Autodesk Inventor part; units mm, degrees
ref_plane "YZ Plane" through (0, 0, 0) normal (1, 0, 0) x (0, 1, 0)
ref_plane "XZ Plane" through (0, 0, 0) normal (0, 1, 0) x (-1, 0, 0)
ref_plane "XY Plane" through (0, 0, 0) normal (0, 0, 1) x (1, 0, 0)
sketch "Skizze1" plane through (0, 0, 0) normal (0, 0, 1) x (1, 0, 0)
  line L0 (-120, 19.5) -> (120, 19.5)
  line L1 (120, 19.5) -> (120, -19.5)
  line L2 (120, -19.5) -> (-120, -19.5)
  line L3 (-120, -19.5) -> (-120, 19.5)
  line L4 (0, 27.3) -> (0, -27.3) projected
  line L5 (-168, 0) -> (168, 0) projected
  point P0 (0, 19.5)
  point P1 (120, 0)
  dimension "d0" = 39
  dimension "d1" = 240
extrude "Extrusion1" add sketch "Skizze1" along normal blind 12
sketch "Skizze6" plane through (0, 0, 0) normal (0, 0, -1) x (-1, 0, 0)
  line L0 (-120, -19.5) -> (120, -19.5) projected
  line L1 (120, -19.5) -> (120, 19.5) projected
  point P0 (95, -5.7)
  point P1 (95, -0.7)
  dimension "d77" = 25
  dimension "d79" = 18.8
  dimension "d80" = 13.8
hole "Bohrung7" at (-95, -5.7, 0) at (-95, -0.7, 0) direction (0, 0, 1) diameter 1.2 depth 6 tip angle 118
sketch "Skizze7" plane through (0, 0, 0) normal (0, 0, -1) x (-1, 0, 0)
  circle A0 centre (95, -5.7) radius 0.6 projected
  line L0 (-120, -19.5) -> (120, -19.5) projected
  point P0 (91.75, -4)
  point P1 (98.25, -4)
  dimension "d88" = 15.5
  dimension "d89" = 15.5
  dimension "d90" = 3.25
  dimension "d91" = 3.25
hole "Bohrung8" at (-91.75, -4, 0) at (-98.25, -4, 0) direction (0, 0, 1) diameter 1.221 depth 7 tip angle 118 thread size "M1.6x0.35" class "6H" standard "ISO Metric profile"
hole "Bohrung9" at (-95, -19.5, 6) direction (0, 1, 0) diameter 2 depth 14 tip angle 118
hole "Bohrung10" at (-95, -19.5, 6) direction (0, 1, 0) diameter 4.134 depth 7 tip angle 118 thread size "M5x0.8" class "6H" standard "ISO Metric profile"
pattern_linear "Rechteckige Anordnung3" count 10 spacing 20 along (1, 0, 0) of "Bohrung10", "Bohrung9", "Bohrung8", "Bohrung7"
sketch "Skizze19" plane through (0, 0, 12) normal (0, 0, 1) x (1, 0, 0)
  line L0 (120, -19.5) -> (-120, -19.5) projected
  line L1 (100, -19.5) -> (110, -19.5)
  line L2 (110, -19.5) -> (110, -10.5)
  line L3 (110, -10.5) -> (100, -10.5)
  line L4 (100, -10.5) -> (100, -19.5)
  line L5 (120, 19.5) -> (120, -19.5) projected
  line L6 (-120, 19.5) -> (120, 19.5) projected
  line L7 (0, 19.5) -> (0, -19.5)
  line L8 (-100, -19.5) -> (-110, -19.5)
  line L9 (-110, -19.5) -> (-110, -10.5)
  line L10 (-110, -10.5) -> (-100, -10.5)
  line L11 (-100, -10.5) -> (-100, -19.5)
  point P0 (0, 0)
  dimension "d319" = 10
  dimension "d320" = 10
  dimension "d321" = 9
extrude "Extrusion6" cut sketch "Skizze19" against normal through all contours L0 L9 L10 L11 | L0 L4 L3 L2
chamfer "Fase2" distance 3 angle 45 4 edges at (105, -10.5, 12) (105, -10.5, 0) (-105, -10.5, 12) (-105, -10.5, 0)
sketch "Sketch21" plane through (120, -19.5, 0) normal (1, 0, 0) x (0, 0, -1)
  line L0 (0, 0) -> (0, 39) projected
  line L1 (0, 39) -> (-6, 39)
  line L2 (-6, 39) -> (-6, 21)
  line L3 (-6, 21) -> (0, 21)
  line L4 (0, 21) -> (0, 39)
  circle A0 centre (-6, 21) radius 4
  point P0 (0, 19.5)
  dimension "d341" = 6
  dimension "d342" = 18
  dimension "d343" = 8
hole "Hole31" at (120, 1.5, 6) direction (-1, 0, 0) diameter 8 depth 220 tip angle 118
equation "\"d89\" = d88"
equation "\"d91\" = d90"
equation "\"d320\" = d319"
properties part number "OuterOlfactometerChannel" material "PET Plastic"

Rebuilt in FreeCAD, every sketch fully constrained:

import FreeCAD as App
import Part
import Sketcher

V = App.Vector
Q = App.Units.Quantity


def edges_at(feature, points):
    """Names of the edges that pass closest to the given points."""
    edges = feature.Shape.Edges
    near = lambda p: min(range(len(edges)), key=lambda i: edges[i].distToShape(Part.Vertex(*p))[0])
    return sorted({f"Edge{near(p) + 1}" for p in points})


def add_polygon(sketch, points):
    """Adds a closed chain of lines whose ends are joined by coincident constraints."""
    first, n = sketch.GeometryCount, len(points)
    for a, b in zip(points, points[1:] + points[:1]):
        sketch.addGeometry(Part.LineSegment(App.Vector(*a, 0), App.Vector(*b, 0)), False)
    for i in range(n):
        sketch.addConstraint(Sketcher.Constraint("Coincident", first + i, 2, first + (i + 1) % n, 1))

doc = App.newDocument("Part")
body = doc.addObject("PartDesign::Body", "Body")

# Sketch on XY plane
sketch1 = body.newObject("Sketcher::SketchObject", "Sketch")
sketch1.AttachmentSupport = (doc.getObject("XY_Plane"), [""])
sketch1.MapMode = "FlatFace"
add_polygon(sketch1, [(-120, 20), (-120, -20), (120, -20), (120, 20)])  # lines 0-3
sketch1.addConstraint([
    Sketcher.Constraint("Vertical", 0),
    Sketcher.Constraint("Horizontal", 1),
    Sketcher.Constraint("Vertical", 2),
    Sketcher.Constraint("Horizontal", 3),
    Sketcher.Constraint("Symmetric", 0, 2, 2, 2, -1, 1),
    Sketcher.Constraint("DistanceX", 1, 1, 1, 2, Q("240 mm")),
    Sketcher.Constraint("DistanceY", 0, 2, 0, 1, Q("39 mm")),
])
pad1 = body.newObject("PartDesign::Pad", "Pad")
pad1.Profile = sketch1
pad1.Length = 12

# Sketch on XY plane
sketch2 = body.newObject("Sketcher::SketchObject", "Sketch001")
sketch2.AttachmentSupport = (doc.getObject("XY_Plane"), [""])
sketch2.MapMode = "FlatFace"
sketch2.addGeometry([
    Part.Circle(V(-95, -5.7, 0), V(0, 0, 1), 0.6),
    Part.Circle(V(-95, -0.7, 0), V(0, 0, 1), 0.6),
], False)
sketch2.addConstraint([
    Sketcher.Constraint("Equal", 0, 1),
    Sketcher.Constraint("Vertical", 0, 3, 1, 3),
    Sketcher.Constraint("Diameter", 0, Q("1.2 mm")),
    Sketcher.Constraint("DistanceX", 0, 3, -1, 1, Q("95 mm")),
    Sketcher.Constraint("DistanceY", 0, 3, 1, 3, Q("5 mm")),
    Sketcher.Constraint("DistanceY", 0, 3, -1, 1, Q("5.7 mm")),
])
doc.recompute()
hole = body.newObject("PartDesign::Hole", "Hole")
hole.Profile = sketch2
hole.ThreadType = "None"
hole.Diameter = 1.2
hole.DepthType = "Dimension"
hole.Depth = 6
hole.DrillPoint = "Angled"
hole.DrillPointAngle = 118
hole.Reversed = True

# Sketch on XY plane
sketch3 = body.newObject("Sketcher::SketchObject", "Sketch002")
sketch3.AttachmentSupport = (doc.getObject("XY_Plane"), [""])
sketch3.MapMode = "FlatFace"
sketch3.addGeometry([
    Part.Circle(V(-91.8, -4, 0), V(0, 0, 1), 0.6),
    Part.Circle(V(-98.2, -4, 0), V(0, 0, 1), 0.6),
], False)
sketch3.addConstraint([
    Sketcher.Constraint("Equal", 0, 1),
    Sketcher.Constraint("Horizontal", 0, 3, 1, 3),
    Sketcher.Constraint("Diameter", 0, Q("1.221 mm")),
    Sketcher.Constraint("DistanceY", 0, 3, -1, 1, Q("4 mm")),
    Sketcher.Constraint("DistanceX", 1, 3, 0, 3, Q("6.5 mm")),
    Sketcher.Constraint("DistanceX", 0, 3, -1, 1, Q("91.75 mm")),
])
doc.recompute()
hole2 = body.newObject("PartDesign::Hole", "Hole001")
hole2.Profile = sketch3
hole2.ThreadType = "None"
hole2.Diameter = 1.221
hole2.DepthType = "Dimension"
hole2.Depth = 7
hole2.DrillPoint = "Angled"
hole2.DrillPointAngle = 118
hole2.Reversed = True

# Sketch on XZ plane
sketch4 = body.newObject("Sketcher::SketchObject", "Sketch003")
sketch4.AttachmentSupport = (doc.getObject("XZ_Plane"), [""])
sketch4.MapMode = "FlatFace"
sketch4.AttachmentOffset = App.Placement(V(0, 0, 19.5), App.Rotation())
sketch4.addGeometry(Part.Circle(V(-95, 6, 0), V(0, 0, 1), 1), False)
sketch4.addConstraint([
    Sketcher.Constraint("Diameter", 0, Q("2 mm")),
    Sketcher.Constraint("DistanceX", 0, 3, -1, 1, Q("95 mm")),
    Sketcher.Constraint("DistanceY", -1, 1, 0, 3, Q("6 mm")),
])
doc.recompute()
hole3 = body.newObject("PartDesign::Hole", "Hole002")
hole3.Profile = sketch4
hole3.ThreadType = "None"
hole3.Diameter = 2
hole3.DepthType = "Dimension"
hole3.Depth = 14
hole3.DrillPoint = "Angled"
hole3.DrillPointAngle = 118

# Sketch on XZ plane
sketch5 = body.newObject("Sketcher::SketchObject", "Sketch004")
sketch5.AttachmentSupport = (doc.getObject("XZ_Plane"), [""])
sketch5.MapMode = "FlatFace"
sketch5.AttachmentOffset = App.Placement(V(0, 0, 19.5), App.Rotation())
sketch5.addGeometry(Part.Circle(V(-95, 6, 0), V(0, 0, 1), 2.1), False)
sketch5.addConstraint([
    Sketcher.Constraint("Diameter", 0, Q("4.134 mm")),
    Sketcher.Constraint("DistanceX", 0, 3, -1, 1, Q("95 mm")),
    Sketcher.Constraint("DistanceY", -1, 1, 0, 3, Q("6 mm")),
])
doc.recompute()
hole4 = body.newObject("PartDesign::Hole", "Hole003")
hole4.Profile = sketch5
hole4.ThreadType = "None"
hole4.Diameter = 4.134
hole4.DepthType = "Dimension"
hole4.Depth = 7
hole4.DrillPoint = "Angled"
hole4.DrillPointAngle = 118
doc.recompute()

linearpattern = body.newObject("PartDesign::LinearPattern", "LinearPattern")
linearpattern.Originals = [hole4, hole3, hole2, hole]
linearpattern.Direction = (doc.getObject("X_Axis"), [""])
linearpattern.Mode = "offset"
linearpattern.Offset = 20
linearpattern.Occurrences = 10
body.Tip = linearpattern

# Sketch on XY plane
sketch6 = body.newObject("Sketcher::SketchObject", "Sketch005")
sketch6.AttachmentSupport = (doc.getObject("XY_Plane"), [""])
sketch6.MapMode = "FlatFace"
sketch6.AttachmentOffset = App.Placement(V(0, 0, 12), App.Rotation())
add_polygon(sketch6, [(-110, -20), (-100, -20), (-100, -10), (-110, -10)])  # lines 0-3
add_polygon(sketch6, [(100, -20), (110, -20), (110, -10), (100, -10)])  # lines 4-7
sketch6.addConstraint([
    Sketcher.Constraint("Horizontal", 0),
    Sketcher.Constraint("Vertical", 1),
    Sketcher.Constraint("Horizontal", 2),
    Sketcher.Constraint("Vertical", 3),
    Sketcher.Constraint("Horizontal", 4),
    Sketcher.Constraint("Vertical", 5),
    Sketcher.Constraint("Horizontal", 6),
    Sketcher.Constraint("Vertical", 7),
    Sketcher.Constraint("Symmetric", 3, 2, 4, 2, -2),
    Sketcher.Constraint("Symmetric", 1, 2, 6, 2, -2),
    Sketcher.Constraint("DistanceX", 0, 1, 0, 2, Q("10 mm")),
    Sketcher.Constraint("DistanceY", 1, 1, 1, 2, Q("9 mm")),
    Sketcher.Constraint("DistanceX", 0, 2, -1, 1, Q("100 mm")),
    Sketcher.Constraint("DistanceY", 0, 2, -1, 1, Q("19.5 mm")),
])
pocket1 = body.newObject("PartDesign::Pocket", "Pocket")
pocket1.Profile = sketch6
pocket1.Type = "ThroughAll"
doc.recompute()

chamfer = body.newObject("PartDesign::Chamfer", "Chamfer")
chamfer.Base = (pocket1, edges_at(pocket1, [
    (105, -10.5, 12),
    (105, -10.5, 0),
    (-105, -10.5, 12),
    (-105, -10.5, 0),
]))
chamfer.Size = 3

# Sketch on YZ plane
sketch7 = body.newObject("Sketcher::SketchObject", "Sketch006")
sketch7.AttachmentSupport = (doc.getObject("YZ_Plane"), [""])
sketch7.MapMode = "FlatFace"
sketch7.AttachmentOffset = App.Placement(V(0, 0, 120), App.Rotation())
sketch7.addGeometry(Part.Circle(V(1.5, 6, 0), V(0, 0, 1), 4), False)
sketch7.addConstraint([
    Sketcher.Constraint("Diameter", 0, Q("8 mm")),
    Sketcher.Constraint("DistanceY", -1, 1, 0, 3, Q("6 mm")),
    Sketcher.Constraint("DistanceX", -1, 1, 0, 3, Q("1.5 mm")),
])
doc.recompute()
hole5 = body.newObject("PartDesign::Hole", "Hole004")
hole5.Profile = sketch7
hole5.ThreadType = "None"
hole5.Diameter = 8
hole5.DepthType = "Dimension"
hole5.Depth = 220
hole5.DrillPoint = "Angled"
hole5.DrillPointAngle = 118

doc.recompute()
